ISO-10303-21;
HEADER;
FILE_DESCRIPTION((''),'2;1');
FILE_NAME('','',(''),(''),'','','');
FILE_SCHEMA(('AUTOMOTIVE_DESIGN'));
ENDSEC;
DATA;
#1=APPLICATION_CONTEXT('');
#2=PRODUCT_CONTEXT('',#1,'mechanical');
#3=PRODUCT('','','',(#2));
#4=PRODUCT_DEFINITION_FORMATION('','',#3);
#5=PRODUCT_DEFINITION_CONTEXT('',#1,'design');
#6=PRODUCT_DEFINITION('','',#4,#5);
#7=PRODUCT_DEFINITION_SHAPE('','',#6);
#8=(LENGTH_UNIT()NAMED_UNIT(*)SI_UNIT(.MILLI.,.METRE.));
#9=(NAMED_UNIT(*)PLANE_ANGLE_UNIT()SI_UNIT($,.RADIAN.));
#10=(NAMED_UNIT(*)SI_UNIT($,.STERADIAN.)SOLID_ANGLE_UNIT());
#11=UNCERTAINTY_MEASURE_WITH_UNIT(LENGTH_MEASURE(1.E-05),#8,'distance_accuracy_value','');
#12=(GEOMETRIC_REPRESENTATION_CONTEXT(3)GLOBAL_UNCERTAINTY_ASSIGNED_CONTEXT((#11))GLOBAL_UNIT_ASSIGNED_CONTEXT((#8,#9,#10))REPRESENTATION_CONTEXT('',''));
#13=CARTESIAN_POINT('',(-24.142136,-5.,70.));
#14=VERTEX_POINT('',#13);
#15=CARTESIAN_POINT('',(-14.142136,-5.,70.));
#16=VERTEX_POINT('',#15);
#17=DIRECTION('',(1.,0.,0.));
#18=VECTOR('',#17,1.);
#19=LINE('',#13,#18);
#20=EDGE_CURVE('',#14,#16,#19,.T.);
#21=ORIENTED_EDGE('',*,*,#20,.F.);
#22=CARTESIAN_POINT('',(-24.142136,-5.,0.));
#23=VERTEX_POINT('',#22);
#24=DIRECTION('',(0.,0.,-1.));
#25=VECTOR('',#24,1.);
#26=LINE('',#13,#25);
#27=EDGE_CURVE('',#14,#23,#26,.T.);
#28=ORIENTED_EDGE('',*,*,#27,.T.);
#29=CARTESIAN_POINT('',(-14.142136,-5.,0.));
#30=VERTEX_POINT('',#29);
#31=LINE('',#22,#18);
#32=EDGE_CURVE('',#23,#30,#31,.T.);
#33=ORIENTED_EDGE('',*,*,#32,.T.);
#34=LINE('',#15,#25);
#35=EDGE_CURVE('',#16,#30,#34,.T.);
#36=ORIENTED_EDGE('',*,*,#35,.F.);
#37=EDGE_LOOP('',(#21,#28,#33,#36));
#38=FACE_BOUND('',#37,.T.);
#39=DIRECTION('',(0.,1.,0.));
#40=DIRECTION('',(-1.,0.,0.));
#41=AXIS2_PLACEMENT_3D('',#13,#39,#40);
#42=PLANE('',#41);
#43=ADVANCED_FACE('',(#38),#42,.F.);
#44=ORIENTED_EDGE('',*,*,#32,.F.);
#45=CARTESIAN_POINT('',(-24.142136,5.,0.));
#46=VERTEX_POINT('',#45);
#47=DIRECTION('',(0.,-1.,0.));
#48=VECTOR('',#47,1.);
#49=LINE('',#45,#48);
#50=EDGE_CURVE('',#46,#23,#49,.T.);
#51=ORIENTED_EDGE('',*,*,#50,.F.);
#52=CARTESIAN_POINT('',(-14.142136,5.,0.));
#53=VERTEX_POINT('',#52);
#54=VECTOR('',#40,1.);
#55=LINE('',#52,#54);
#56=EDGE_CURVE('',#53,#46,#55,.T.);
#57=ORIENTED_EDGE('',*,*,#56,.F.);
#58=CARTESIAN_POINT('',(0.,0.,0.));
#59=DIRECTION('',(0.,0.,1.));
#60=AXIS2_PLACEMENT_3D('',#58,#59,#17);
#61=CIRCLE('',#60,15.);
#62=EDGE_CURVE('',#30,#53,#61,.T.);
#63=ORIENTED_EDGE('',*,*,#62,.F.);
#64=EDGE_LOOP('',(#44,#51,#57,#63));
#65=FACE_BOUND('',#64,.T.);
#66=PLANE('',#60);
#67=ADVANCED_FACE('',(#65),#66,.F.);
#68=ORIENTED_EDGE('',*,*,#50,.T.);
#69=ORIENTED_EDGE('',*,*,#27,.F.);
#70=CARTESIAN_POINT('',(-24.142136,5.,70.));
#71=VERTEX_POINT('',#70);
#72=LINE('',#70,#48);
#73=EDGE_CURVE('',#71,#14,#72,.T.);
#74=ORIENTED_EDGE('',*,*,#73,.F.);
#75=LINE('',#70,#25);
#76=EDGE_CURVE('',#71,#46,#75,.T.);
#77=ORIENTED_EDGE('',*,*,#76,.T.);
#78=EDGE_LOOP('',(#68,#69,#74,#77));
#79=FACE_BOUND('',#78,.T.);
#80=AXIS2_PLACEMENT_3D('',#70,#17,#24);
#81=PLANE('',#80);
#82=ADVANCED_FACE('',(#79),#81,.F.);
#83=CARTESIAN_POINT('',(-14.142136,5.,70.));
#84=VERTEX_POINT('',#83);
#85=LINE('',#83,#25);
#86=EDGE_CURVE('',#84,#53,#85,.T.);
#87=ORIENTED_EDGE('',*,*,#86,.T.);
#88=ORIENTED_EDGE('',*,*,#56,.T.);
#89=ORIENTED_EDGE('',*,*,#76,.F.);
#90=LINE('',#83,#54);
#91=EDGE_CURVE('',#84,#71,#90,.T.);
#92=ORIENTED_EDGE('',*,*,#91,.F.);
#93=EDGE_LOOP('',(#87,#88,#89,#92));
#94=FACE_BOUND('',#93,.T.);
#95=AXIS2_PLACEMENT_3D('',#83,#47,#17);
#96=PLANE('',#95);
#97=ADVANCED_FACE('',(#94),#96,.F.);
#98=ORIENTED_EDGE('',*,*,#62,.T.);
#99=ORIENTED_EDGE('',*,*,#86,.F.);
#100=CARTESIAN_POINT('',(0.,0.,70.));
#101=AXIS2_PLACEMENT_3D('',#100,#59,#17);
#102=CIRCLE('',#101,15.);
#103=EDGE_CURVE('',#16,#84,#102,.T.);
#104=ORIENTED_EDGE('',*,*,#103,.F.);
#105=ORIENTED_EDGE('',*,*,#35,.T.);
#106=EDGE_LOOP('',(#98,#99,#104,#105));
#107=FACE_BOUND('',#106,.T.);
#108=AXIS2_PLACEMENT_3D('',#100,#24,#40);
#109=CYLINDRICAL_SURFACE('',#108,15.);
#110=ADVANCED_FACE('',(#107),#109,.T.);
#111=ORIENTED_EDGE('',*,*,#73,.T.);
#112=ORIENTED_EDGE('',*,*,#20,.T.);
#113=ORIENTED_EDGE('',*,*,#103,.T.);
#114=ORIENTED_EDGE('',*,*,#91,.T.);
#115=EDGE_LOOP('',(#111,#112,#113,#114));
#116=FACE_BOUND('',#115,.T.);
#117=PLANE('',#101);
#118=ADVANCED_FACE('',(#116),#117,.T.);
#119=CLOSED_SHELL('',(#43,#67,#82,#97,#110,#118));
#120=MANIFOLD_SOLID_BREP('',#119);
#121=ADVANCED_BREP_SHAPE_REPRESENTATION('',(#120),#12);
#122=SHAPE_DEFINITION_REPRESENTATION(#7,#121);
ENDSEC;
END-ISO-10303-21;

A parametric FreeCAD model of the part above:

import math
import FreeCAD as App
import Part
import Sketcher

V = App.Vector
Q = App.Units.Quantity

doc = App.newDocument("Part")
body = doc.addObject("PartDesign::Body", "Body")

# Sketch on XY plane
sketch1 = doc.addObject("Sketcher::SketchObject", "Sketch")
body.addObject(sketch1)
sketch1.AttachmentSupport = (doc.XY_Plane, [""])
sketch1.MapMode = "FlatFace"
sketch1.addGeometry(Part.LineSegment(V(-14, 5, 0), V(-24, 5, 0)), False)
sketch1.addGeometry(Part.LineSegment(V(-24, 5, 0), V(-24, -5, 0)), False)
sketch1.addGeometry(Part.LineSegment(V(-24, -5, 0), V(-14, -5, 0)), False)
sketch1.addGeometry(Part.ArcOfCircle(Part.Circle(V(0, 0, 0), V(0, 0, 1), 15), math.radians(-161), math.radians(161)), False)
sketch1.addConstraint(Sketcher.Constraint("Coincident", 0, 2, 1, 1))
sketch1.addConstraint(Sketcher.Constraint("Coincident", 1, 2, 2, 1))
sketch1.addConstraint(Sketcher.Constraint("Coincident", 2, 2, 3, 1))
sketch1.addConstraint(Sketcher.Constraint("Coincident", 3, 2, 0, 1))
sketch1.addConstraint(Sketcher.Constraint("Horizontal", 0))
sketch1.addConstraint(Sketcher.Constraint("Vertical", 1))
sketch1.addConstraint(Sketcher.Constraint("Horizontal", 2))
sketch1.addConstraint(Sketcher.Constraint("Coincident", 3, 3, -1, 1))
sketch1.addConstraint(Sketcher.Constraint("Vertical", 2, 2, 3, 2))
sketch1.addConstraint(Sketcher.Constraint("Equal", 2, 1))
sketch1.addConstraint(Sketcher.Constraint("Radius", 3, Q("15 mm")))
sketch1.addConstraint(Sketcher.Constraint("DistanceX", 0, 2, 0, 1, Q("10 mm")))
pad1 = doc.addObject("PartDesign::Pad", "Pad")
body.addObject(pad1)
pad1.Profile = sketch1
pad1.Length = 70

doc.recompute()
